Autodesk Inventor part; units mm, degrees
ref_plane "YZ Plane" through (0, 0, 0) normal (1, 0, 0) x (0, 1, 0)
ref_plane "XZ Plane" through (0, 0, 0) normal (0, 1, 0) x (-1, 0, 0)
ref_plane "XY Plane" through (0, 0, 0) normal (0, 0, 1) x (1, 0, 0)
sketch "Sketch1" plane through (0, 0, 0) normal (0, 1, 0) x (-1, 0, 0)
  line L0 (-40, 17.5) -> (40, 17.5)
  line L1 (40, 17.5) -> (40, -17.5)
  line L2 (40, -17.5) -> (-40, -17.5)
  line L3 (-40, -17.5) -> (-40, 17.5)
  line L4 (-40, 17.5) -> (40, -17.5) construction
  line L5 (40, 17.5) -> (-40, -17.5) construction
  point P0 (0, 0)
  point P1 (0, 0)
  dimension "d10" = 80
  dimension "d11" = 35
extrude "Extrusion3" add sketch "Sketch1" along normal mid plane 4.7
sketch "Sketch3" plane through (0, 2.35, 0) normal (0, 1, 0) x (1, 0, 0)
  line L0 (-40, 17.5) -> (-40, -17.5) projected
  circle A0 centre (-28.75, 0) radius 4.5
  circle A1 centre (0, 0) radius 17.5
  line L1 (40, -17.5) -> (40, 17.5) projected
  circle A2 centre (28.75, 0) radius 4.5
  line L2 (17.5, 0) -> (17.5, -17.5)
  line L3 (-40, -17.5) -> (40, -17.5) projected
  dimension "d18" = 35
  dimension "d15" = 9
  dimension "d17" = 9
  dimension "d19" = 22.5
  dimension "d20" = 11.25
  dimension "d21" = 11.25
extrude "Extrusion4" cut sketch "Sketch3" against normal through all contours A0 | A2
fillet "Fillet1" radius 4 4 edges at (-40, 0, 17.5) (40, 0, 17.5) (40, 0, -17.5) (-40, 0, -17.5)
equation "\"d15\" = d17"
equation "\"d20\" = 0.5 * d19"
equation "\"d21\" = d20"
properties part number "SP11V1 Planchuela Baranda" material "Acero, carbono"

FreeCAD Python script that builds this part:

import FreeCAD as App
import Part
import Sketcher


def edges_at(feature, points):
    """Names of the edges that pass closest to the given points."""
    edges = feature.Shape.Edges
    near = lambda p: min(range(len(edges)), key=lambda i: edges[i].distToShape(Part.Vertex(*p))[0])
    return sorted({f"Edge{near(p) + 1}" for p in points})

doc = App.newDocument("Part")
params = doc.addObject("Spreadsheet::Sheet", "Params")
for row, (alias, value) in enumerate([
    ("sketch1_width", "80 mm"),
    ("sketch1_height", "35 mm"),
    ("pad1_length", "4.7 mm"),
    ("sketch2_diameter", "9 mm"),
    ("fillet_radius", "4 mm"),
], start=1):
    params.set(f"A{row}", alias)
    params.set(f"B{row}", "=" + value)
    params.setAlias(f"B{row}", alias)

body = doc.addObject("PartDesign::Body", "Body")

# Sketch on XZ plane
sketch1 = doc.addObject("Sketcher::SketchObject", "Sketch")
body.addObject(sketch1)
sketch1.AttachmentSupport = (doc.XZ_Plane, [""])
sketch1.MapMode = "FlatFace"
sketch1.addGeometry(Part.LineSegment(App.Vector(-40, 18, 0), App.Vector(40, 18, 0)), False)
sketch1.addGeometry(Part.LineSegment(App.Vector(40, 18, 0), App.Vector(40, -18, 0)), False)
sketch1.addGeometry(Part.LineSegment(App.Vector(40, -18, 0), App.Vector(-40, -18, 0)), False)
sketch1.addGeometry(Part.LineSegment(App.Vector(-40, -18, 0), App.Vector(-40, 18, 0)), False)
sketch1.addConstraint(Sketcher.Constraint("Coincident", 0, 2, 1, 1))
sketch1.addConstraint(Sketcher.Constraint("Coincident", 1, 2, 2, 1))
sketch1.addConstraint(Sketcher.Constraint("Coincident", 2, 2, 3, 1))
sketch1.addConstraint(Sketcher.Constraint("Coincident", 3, 2, 0, 1))
sketch1.addConstraint(Sketcher.Constraint("Horizontal", 0))
sketch1.addConstraint(Sketcher.Constraint("Vertical", 1))
sketch1.addConstraint(Sketcher.Constraint("Horizontal", 2))
sketch1.addConstraint(Sketcher.Constraint("Vertical", 3))
sketch1.addConstraint(Sketcher.Constraint("Symmetric", 0, 2, 2, 2, -1, 1))
sketch1.addConstraint(Sketcher.Constraint("DistanceX", 0, 1, 0, 2, 80.0))
sketch1.addConstraint(Sketcher.Constraint("DistanceY", 1, 2, 1, 1, 35.0))
sketch1.setExpression("Constraints[9]", "Params.sketch1_width")
sketch1.setExpression("Constraints[10]", "Params.sketch1_height")
pad1 = doc.addObject("PartDesign::Pad", "Pad")
body.addObject(pad1)
pad1.Profile = sketch1
pad1.setExpression("Length", "Params.pad1_length")
pad1.Midplane = True

# Sketch on XZ plane
sketch2 = doc.addObject("Sketcher::SketchObject", "Sketch001")
body.addObject(sketch2)
sketch2.AttachmentSupport = (doc.XZ_Plane, [""])
sketch2.MapMode = "FlatFace"
sketch2.AttachmentOffset = App.Placement(App.Vector(0, 0, -2.35), App.Rotation())
sketch2.addGeometry(Part.Circle(App.Vector(-28.8, 0, 0), App.Vector(0, 0, 1), 4.5), False)
sketch2.addGeometry(Part.Circle(App.Vector(28.8, 0, 0), App.Vector(0, 0, 1), 4.5), False)
sketch2.addConstraint(Sketcher.Constraint("Equal", 0, 1))
sketch2.addConstraint(Sketcher.Constraint("Symmetric", 0, 3, 1, 3, -1, 1))
sketch2.addConstraint(Sketcher.Constraint("PointOnObject", 0, 3, -1))
sketch2.addConstraint(Sketcher.Constraint("Diameter", 0, 9.0))
sketch2.addConstraint(Sketcher.Constraint("DistanceX", 0, 3, 1, 3, 57.5))
sketch2.setExpression("Constraints[3]", "Params.sketch2_diameter")
pocket1 = doc.addObject("PartDesign::Pocket", "Pocket")
body.addObject(pocket1)
pocket1.Profile = sketch2
pocket1.Type = "ThroughAll"
pocket1.Reversed = True
doc.recompute()

fillet = doc.addObject("PartDesign::Fillet", "Fillet")
body.addObject(fillet)
fillet.Base = (pocket1, edges_at(pocket1, [
    (-40, 0, 17.5),
    (40, 0, 17.5),
    (40, 0, -17.5),
    (-40, 0, -17.5),
]))
fillet.setExpression("Radius", "Params.fillet_radius")

doc.recompute()
